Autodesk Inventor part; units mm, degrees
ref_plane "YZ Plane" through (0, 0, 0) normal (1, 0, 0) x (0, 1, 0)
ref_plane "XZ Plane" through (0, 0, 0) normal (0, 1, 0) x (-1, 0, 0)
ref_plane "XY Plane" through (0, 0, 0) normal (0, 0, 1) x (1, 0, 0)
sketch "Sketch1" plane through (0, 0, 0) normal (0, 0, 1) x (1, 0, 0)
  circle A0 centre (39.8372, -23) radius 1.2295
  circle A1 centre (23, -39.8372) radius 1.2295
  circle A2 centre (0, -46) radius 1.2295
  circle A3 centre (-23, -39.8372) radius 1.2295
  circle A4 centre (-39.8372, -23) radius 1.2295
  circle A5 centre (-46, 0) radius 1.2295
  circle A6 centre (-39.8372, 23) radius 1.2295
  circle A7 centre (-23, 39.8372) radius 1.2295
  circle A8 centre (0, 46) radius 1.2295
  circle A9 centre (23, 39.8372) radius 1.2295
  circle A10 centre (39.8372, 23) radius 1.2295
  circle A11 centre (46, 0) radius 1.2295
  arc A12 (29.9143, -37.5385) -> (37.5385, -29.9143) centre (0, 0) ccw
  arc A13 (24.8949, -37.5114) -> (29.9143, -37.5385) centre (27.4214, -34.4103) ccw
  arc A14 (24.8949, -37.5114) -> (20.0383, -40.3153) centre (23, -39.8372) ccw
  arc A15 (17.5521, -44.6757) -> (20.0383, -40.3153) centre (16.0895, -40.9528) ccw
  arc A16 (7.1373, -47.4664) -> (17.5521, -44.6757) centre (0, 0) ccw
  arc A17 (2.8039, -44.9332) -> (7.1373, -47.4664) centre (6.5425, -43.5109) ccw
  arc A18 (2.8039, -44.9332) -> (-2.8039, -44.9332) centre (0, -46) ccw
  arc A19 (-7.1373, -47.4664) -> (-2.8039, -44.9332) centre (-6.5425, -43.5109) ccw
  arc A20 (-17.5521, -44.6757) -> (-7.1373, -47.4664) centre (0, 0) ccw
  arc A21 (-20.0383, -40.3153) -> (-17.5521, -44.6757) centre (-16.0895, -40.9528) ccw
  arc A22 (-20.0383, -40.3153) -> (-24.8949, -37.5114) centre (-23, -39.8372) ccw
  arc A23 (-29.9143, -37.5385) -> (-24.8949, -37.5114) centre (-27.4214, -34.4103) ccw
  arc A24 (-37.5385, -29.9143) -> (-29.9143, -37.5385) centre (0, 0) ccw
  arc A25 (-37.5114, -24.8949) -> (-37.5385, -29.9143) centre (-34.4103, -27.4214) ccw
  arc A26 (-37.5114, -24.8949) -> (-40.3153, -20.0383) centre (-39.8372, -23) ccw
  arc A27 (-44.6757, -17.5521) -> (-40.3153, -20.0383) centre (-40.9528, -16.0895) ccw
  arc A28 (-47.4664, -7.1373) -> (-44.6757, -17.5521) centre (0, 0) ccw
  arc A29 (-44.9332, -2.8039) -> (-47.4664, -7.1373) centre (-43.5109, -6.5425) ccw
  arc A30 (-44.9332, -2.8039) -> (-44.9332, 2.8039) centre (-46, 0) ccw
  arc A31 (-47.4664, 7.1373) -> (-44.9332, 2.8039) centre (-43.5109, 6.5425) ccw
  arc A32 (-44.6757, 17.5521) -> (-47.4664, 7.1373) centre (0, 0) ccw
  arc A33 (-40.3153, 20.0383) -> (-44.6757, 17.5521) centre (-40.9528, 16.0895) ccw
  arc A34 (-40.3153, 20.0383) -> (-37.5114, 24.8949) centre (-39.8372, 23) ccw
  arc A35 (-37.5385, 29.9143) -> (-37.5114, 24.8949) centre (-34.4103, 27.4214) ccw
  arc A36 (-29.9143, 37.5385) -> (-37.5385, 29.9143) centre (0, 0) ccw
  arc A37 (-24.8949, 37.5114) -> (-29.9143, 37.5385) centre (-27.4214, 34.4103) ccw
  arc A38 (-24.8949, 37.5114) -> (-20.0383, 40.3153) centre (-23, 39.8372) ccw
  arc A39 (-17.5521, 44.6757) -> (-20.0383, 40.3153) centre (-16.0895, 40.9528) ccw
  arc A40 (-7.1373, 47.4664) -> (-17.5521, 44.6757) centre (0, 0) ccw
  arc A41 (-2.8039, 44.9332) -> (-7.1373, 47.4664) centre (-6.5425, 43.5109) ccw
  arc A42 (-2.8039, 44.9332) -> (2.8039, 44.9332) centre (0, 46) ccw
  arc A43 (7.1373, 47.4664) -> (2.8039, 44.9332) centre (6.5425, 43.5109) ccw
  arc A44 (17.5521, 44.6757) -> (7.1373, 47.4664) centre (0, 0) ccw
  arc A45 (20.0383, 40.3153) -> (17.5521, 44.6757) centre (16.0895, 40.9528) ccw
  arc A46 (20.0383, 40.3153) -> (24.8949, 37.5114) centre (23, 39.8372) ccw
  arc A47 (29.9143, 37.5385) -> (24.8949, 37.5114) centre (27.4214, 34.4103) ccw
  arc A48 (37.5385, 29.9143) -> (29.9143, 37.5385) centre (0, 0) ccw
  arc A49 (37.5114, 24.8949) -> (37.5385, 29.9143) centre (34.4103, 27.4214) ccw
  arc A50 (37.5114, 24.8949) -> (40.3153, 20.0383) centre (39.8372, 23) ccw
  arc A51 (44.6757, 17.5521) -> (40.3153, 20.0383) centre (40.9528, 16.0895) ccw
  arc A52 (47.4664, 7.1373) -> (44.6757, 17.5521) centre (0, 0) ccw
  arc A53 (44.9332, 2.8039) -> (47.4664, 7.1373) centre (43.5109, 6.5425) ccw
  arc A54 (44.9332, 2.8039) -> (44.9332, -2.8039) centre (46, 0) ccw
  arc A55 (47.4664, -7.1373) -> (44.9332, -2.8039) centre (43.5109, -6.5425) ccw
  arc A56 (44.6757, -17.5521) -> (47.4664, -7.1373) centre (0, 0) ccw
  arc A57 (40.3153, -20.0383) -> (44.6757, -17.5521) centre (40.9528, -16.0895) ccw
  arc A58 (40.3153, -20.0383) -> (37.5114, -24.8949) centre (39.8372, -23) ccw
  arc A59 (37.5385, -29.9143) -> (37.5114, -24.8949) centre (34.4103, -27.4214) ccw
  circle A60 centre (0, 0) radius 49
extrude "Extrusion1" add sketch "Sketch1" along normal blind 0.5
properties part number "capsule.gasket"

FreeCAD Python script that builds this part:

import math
import FreeCAD as App
import Part
import Sketcher
from FreeCAD import Vector
Q = App.Units.Quantity

doc = App.newDocument("Part")
body = doc.addObject("PartDesign::Body", "Body")

# Sketch on XY plane
sketch1 = body.newObject("Sketcher::SketchObject", "Sketch")
sketch1.AttachmentSupport = (doc.getObject("XY_Plane"), [""])
sketch1.MapMode = "FlatFace"
sketch1.addGeometry([
    Part.Circle(Vector(0, 0, 0), Vector(0, 0, 1), 49),  # 0
    Part.Circle(Vector(-23, -39.8372, 0), Vector(0, 0, 1), 1.2295),  # 1
    Part.Circle(Vector(0, -46, 0), Vector(0, 0, 1), 1.2295),  # 2
    Part.Circle(Vector(-39.8372, -23, 0), Vector(0, 0, 1), 1.2295),  # 3
    Part.Circle(Vector(-46, 0, 0), Vector(0, 0, 1), 1.2295),  # 4
    Part.ArcOfCircle(Part.Circle(Vector(0, 0, 0), Vector(0, 0, 1), 48.000045), math.radians(-51.448781), math.radians(-38.551219)),  # 5
    Part.ArcOfCircle(Part.Circle(Vector(27.4214, -34.4103, 0), Vector(0, 0, 1), 4.000003), math.radians(-129.17008), math.radians(-51.448239)),  # 6
    Part.ArcOfCircle(Part.Circle(Vector(23, -39.8372, 0), Vector(0, 0, 1), 2.999999), math.radians(50.829248), math.radians(189.170011)),  # 7
    Part.ArcOfCircle(Part.Circle(Vector(16.0895, -40.9528, 0), Vector(0, 0, 1), 3.999898), math.radians(-68.551835), math.radians(9.170786)),  # 8
    Part.ArcOfCircle(Part.Circle(Vector(0.000975, -0.004677, 0), Vector(0, 0, 1), 47.995232), math.radians(-81.449086), math.radians(-68.55027)),  # 9
    Part.ArcOfCircle(Part.Circle(Vector(6.5425, -43.5109, 0), Vector(0, 0, 1), 4.000008), math.radians(-159.171357), math.radians(-81.44834)),  # 10
    Part.ArcOfCircle(Part.Circle(Vector(0, -46, 0), Vector(0, 0, 1), 2.999986), math.radians(20.830321), math.radians(159.169679)),  # 11
    Part.ArcOfCircle(Part.Circle(Vector(-6.5425, -43.5109, 0), Vector(0, 0, 1), 3.999971), math.radians(-98.55166), math.radians(-20.828643)),  # 12
    Part.ArcOfCircle(Part.Circle(Vector(0.001494, 0.004539, 0), Vector(0, 0, 1), 48.004712), math.radians(-111.448451), math.radians(-98.552193)),  # 13
    Part.ArcOfCircle(Part.Circle(Vector(-16.0895, -40.9528, 0), Vector(0, 0, 1), 3.999928), math.radians(170.829214), math.radians(248.551835)),  # 14
    Part.ArcOfCircle(Part.Circle(Vector(-23, -39.8372, 0), Vector(0, 0, 1), 3.000041), math.radians(-9.170011), math.radians(129.170752)),  # 15
    Part.ArcOfCircle(Part.Circle(Vector(-27.4214, -34.4103, 0), Vector(0, 0, 1), 4.000023), math.radians(-128.551761), math.radians(-50.82992)),  # 16
    Part.ArcOfCircle(Part.Circle(Vector(0, 0, 0), Vector(0, 0, 1), 48.000045), math.radians(-141.448781), math.radians(-128.551219)),  # 17
    Part.ArcOfCircle(Part.Circle(Vector(-34.4103, -27.4214, 0), Vector(0, 0, 1), 4.000003), math.radians(140.82992), math.radians(218.551761)),  # 18
    Part.ArcOfCircle(Part.Circle(Vector(-39.8372, -23, 0), Vector(0, 0, 1), 2.999999), math.radians(-39.170752), math.radians(99.170011)),  # 19
    Part.ArcOfCircle(Part.Circle(Vector(-40.9528, -16.0895, 0), Vector(0, 0, 1), 3.999898), math.radians(-158.551835), math.radians(-80.829214)),  # 20
    Part.ArcOfCircle(Part.Circle(Vector(-0.004677, -0.000975, 0), Vector(0, 0, 1), 47.995232), math.radians(-171.449086), math.radians(-158.55027)),  # 21
    Part.ArcOfCircle(Part.Circle(Vector(-43.5109, -6.5425, 0), Vector(0, 0, 1), 4.000008), math.radians(110.828643), math.radians(188.55166)),  # 22
    Part.ArcOfCircle(Part.Circle(Vector(-46, 0, 0), Vector(0, 0, 1), 2.999986), math.radians(-69.169679), math.radians(69.169679)),  # 23
    Part.ArcOfCircle(Part.Circle(Vector(-43.5109, 6.5425, 0), Vector(0, 0, 1), 3.999971), math.radians(171.44834), math.radians(249.171357)),  # 24
    Part.ArcOfCircle(Part.Circle(Vector(0.004539, -0.001494, 0), Vector(0, 0, 1), 48.004712), math.radians(158.551549), math.radians(171.447807)),  # 25
    Part.ArcOfCircle(Part.Circle(Vector(-40.9528, 16.0895, 0), Vector(0, 0, 1), 3.999928), math.radians(80.829214), math.radians(158.551835)),  # 26
    Part.ArcOfCircle(Part.Circle(Vector(-39.8372, 23, 0), Vector(0, 0, 1), 3.000041), math.radians(-99.170011), math.radians(39.170752)),  # 27
    Part.ArcOfCircle(Part.Circle(Vector(-34.4103, 27.4214, 0), Vector(0, 0, 1), 4.000023), math.radians(141.448239), math.radians(219.17008)),  # 28
    Part.ArcOfCircle(Part.Circle(Vector(0, 0, 0), Vector(0, 0, 1), 48.000045), math.radians(128.551219), math.radians(141.448781)),  # 29
    Part.ArcOfCircle(Part.Circle(Vector(-27.4214, 34.4103, 0), Vector(0, 0, 1), 4.000003), math.radians(50.82992), math.radians(128.551761)),  # 30
    Part.ArcOfCircle(Part.Circle(Vector(-23, 39.8372, 0), Vector(0, 0, 1), 2.999999), math.radians(-129.170752), math.radians(9.170011)),  # 31
    Part.ArcOfCircle(Part.Circle(Vector(-16.0895, 40.9528, 0), Vector(0, 0, 1), 3.999898), math.radians(111.448165), math.radians(189.170786)),  # 32
    Part.ArcOfCircle(Part.Circle(Vector(-0.000975, 0.004677, 0), Vector(0, 0, 1), 47.995232), math.radians(98.550914), math.radians(111.44973)),  # 33
    Part.ArcOfCircle(Part.Circle(Vector(-6.5425, 43.5109, 0), Vector(0, 0, 1), 4.000008), math.radians(20.828643), math.radians(98.55166)),  # 34
    Part.ArcOfCircle(Part.Circle(Vector(0, 46, 0), Vector(0, 0, 1), 2.999986), math.radians(-159.169679), math.radians(-20.830321)),  # 35
    Part.ArcOfCircle(Part.Circle(Vector(6.5425, 43.5109, 0), Vector(0, 0, 1), 3.999971), math.radians(81.44834), math.radians(159.171357)),  # 36
    Part.ArcOfCircle(Part.Circle(Vector(-0.001494, -0.004539, 0), Vector(0, 0, 1), 48.004712), math.radians(68.551549), math.radians(81.447807)),  # 37
    Part.ArcOfCircle(Part.Circle(Vector(16.0895, 40.9528, 0), Vector(0, 0, 1), 3.999928), math.radians(-9.170786), math.radians(68.551835)),  # 38
    Part.ArcOfCircle(Part.Circle(Vector(23, 39.8372, 0), Vector(0, 0, 1), 3.000041), math.radians(170.829989), math.radians(309.170752)),  # 39
    Part.ArcOfCircle(Part.Circle(Vector(27.4214, 34.4103, 0), Vector(0, 0, 1), 4.000023), math.radians(51.448239), math.radians(129.17008)),  # 40
    Part.ArcOfCircle(Part.Circle(Vector(0, 0, 0), Vector(0, 0, 1), 48.000045), math.radians(38.551219), math.radians(51.448781)),  # 41
    Part.ArcOfCircle(Part.Circle(Vector(34.4103, 27.4214, 0), Vector(0, 0, 1), 4.000003), math.radians(-39.17008), math.radians(38.551761)),  # 42
    Part.ArcOfCircle(Part.Circle(Vector(39.8372, 23, 0), Vector(0, 0, 1), 2.999999), math.radians(140.829248), math.radians(279.170011)),  # 43
    Part.ArcOfCircle(Part.Circle(Vector(40.9528, 16.0895, 0), Vector(0, 0, 1), 3.999898), math.radians(21.448165), math.radians(99.170786)),  # 44
    Part.ArcOfCircle(Part.Circle(Vector(0.004677, 0.000975, 0), Vector(0, 0, 1), 47.995232), math.radians(8.550914), math.radians(21.44973)),  # 45
    Part.ArcOfCircle(Part.Circle(Vector(43.5109, 6.5425, 0), Vector(0, 0, 1), 4.000008), math.radians(-69.171357), math.radians(8.55166)),  # 46
    Part.ArcOfCircle(Part.Circle(Vector(46, 0, 0), Vector(0, 0, 1), 2.999986), math.radians(110.830321), math.radians(249.169679)),  # 47
    Part.ArcOfCircle(Part.Circle(Vector(43.5109, -6.5425, 0), Vector(0, 0, 1), 3.999971), math.radians(-8.55166), math.radians(69.171357)),  # 48
    Part.ArcOfCircle(Part.Circle(Vector(-0.004539, 0.001494, 0), Vector(0, 0, 1), 48.004712), math.radians(-21.448451), math.radians(-8.552193)),  # 49
    Part.ArcOfCircle(Part.Circle(Vector(40.9528, -16.0895, 0), Vector(0, 0, 1), 3.999928), math.radians(-99.170786), math.radians(-21.448165)),  # 50
    Part.ArcOfCircle(Part.Circle(Vector(39.8372, -23, 0), Vector(0, 0, 1), 3.000041), math.radians(80.829989), math.radians(219.170752)),  # 51
    Part.ArcOfCircle(Part.Circle(Vector(34.4103, -27.4214, 0), Vector(0, 0, 1), 4.000023), math.radians(-38.551761), math.radians(39.17008)),  # 52
    Part.Circle(Vector(23, -39.8372, 0), Vector(0, 0, 1), 1.2295),  # 53
    Part.Circle(Vector(39.8372, -23, 0), Vector(0, 0, 1), 1.2295),  # 54
    Part.Circle(Vector(46, 0, 0), Vector(0, 0, 1), 1.2295),  # 55
    Part.Circle(Vector(-39.8372, 23, 0), Vector(0, 0, 1), 1.2295),  # 56
    Part.Circle(Vector(-23, 39.8372, 0), Vector(0, 0, 1), 1.2295),  # 57
    Part.Circle(Vector(0, 46, 0), Vector(0, 0, 1), 1.2295),  # 58
    Part.Circle(Vector(39.8372, 23, 0), Vector(0, 0, 1), 1.2295),  # 59
    Part.Circle(Vector(23, 39.8372, 0), Vector(0, 0, 1), 1.2295),  # 60
], False)
sketch1.addConstraint([
    Sketcher.Constraint("Tangent", 5, 1, 6, 2),
    Sketcher.Constraint("Tangent", 6, 1, 7, 1),
    Sketcher.Constraint("Tangent", 7, 2, 8, 2),
    Sketcher.Constraint("Tangent", 8, 1, 9, 2),
    Sketcher.Constraint("Tangent", 9, 1, 10, 2),
    Sketcher.Constraint("Tangent", 10, 1, 11, 1),
    Sketcher.Constraint("Tangent", 11, 2, 12, 2),
    Sketcher.Constraint("Tangent", 12, 1, 13, 2),
    Sketcher.Constraint("Tangent", 13, 1, 14, 2),
    Sketcher.Constraint("Tangent", 14, 1, 15, 1),
    Sketcher.Constraint("Tangent", 15, 2, 16, 2),
    Sketcher.Constraint("Tangent", 16, 1, 17, 2),
    Sketcher.Constraint("Tangent", 17, 1, 18, 2),
    Sketcher.Constraint("Tangent", 18, 1, 19, 1),
    Sketcher.Constraint("Tangent", 19, 2, 20, 2),
    Sketcher.Constraint("Tangent", 20, 1, 21, 2),
    Sketcher.Constraint("Tangent", 21, 1, 22, 2),
    Sketcher.Constraint("Tangent", 22, 1, 23, 1),
    Sketcher.Constraint("Tangent", 23, 2, 24, 2),
    Sketcher.Constraint("Tangent", 24, 1, 25, 2),
    Sketcher.Constraint("Tangent", 25, 1, 26, 2),
    Sketcher.Constraint("Tangent", 26, 1, 27, 1),
    Sketcher.Constraint("Tangent", 27, 2, 28, 2),
    Sketcher.Constraint("Tangent", 28, 1, 29, 2),
    Sketcher.Constraint("Tangent", 29, 1, 30, 2),
    Sketcher.Constraint("Tangent", 30, 1, 31, 1),
    Sketcher.Constraint("Tangent", 31, 2, 32, 2),
    Sketcher.Constraint("Tangent", 32, 1, 33, 2),
    Sketcher.Constraint("Tangent", 33, 1, 34, 2),
    Sketcher.Constraint("Tangent", 34, 1, 35, 1),
    Sketcher.Constraint("Tangent", 35, 2, 36, 2),
    Sketcher.Constraint("Tangent", 36, 1, 37, 2),
    Sketcher.Constraint("Tangent", 37, 1, 38, 2),
    Sketcher.Constraint("Tangent", 38, 1, 39, 1),
    Sketcher.Constraint("Tangent", 39, 2, 40, 2),
    Sketcher.Constraint("Tangent", 40, 1, 41, 2),
    Sketcher.Constraint("Tangent", 41, 1, 42, 2),
    Sketcher.Constraint("Tangent", 42, 1, 43, 1),
    Sketcher.Constraint("Tangent", 43, 2, 44, 2),
    Sketcher.Constraint("Tangent", 44, 1, 45, 2),
    Sketcher.Constraint("Tangent", 45, 1, 46, 2),
    Sketcher.Constraint("Tangent", 46, 1, 47, 1),
    Sketcher.Constraint("Tangent", 47, 2, 48, 2),
    Sketcher.Constraint("Tangent", 48, 1, 49, 2),
    Sketcher.Constraint("Tangent", 49, 1, 50, 2),
    Sketcher.Constraint("Tangent", 50, 1, 51, 1),
    Sketcher.Constraint("Tangent", 51, 2, 52, 2),
    Sketcher.Constraint("Tangent", 52, 1, 5, 2),
    Sketcher.Constraint("Coincident", 0, 3, -1, 1),
    Sketcher.Constraint("Coincident", 5, 3, -1, 1),
    Sketcher.Constraint("Coincident", 17, 3, -1, 1),
    Sketcher.Constraint("Coincident", 29, 3, -1, 1),
    Sketcher.Constraint("Coincident", 41, 3, -1, 1),
    Sketcher.Constraint("Coincident", 11, 3, 2, 3),
    Sketcher.Constraint("Coincident", 15, 3, 1, 3),
    Sketcher.Constraint("Coincident", 19, 3, 3, 3),
    Sketcher.Constraint("Coincident", 23, 3, 4, 3),
    Sketcher.Constraint("Coincident", 53, 3, 7, 3),
    Sketcher.Constraint("Coincident", 54, 3, 51, 3),
    Sketcher.Constraint("Coincident", 55, 3, 47, 3),
    Sketcher.Constraint("Coincident", 56, 3, 27, 3),
    Sketcher.Constraint("Coincident", 57, 3, 31, 3),
    Sketcher.Constraint("Coincident", 58, 3, 35, 3),
    Sketcher.Constraint("Coincident", 59, 3, 43, 3),
    Sketcher.Constraint("Coincident", 60, 3, 39, 3),
    Sketcher.Constraint("Equal", 1, 2),
    Sketcher.Constraint("Equal", 2, 3),
    Sketcher.Constraint("Equal", 3, 4),
    Sketcher.Constraint("Equal", 6, 8),
    Sketcher.Constraint("Equal", 8, 10),
    Sketcher.Constraint("Equal", 7, 11),
    Sketcher.Constraint("Equal", 10, 12),
    Sketcher.Constraint("Equal", 12, 14),
    Sketcher.Constraint("Equal", 11, 15),
    Sketcher.Constraint("Equal", 14, 16),
    Sketcher.Constraint("Equal", 5, 17),
    Sketcher.Constraint("Equal", 16, 18),
    Sketcher.Constraint("Equal", 15, 19),
    Sketcher.Constraint("Equal", 18, 20),
    Sketcher.Constraint("Equal", 9, 21),
    Sketcher.Constraint("Equal", 20, 22),
    Sketcher.Constraint("Equal", 19, 23),
    Sketcher.Constraint("Equal", 22, 24),
    Sketcher.Constraint("Equal", 13, 25),
    Sketcher.Constraint("Equal", 24, 26),
    Sketcher.Constraint("Equal", 23, 27),
    Sketcher.Constraint("Equal", 26, 28),
    Sketcher.Constraint("Equal", 17, 29),
    Sketcher.Constraint("Equal", 28, 30),
    Sketcher.Constraint("Equal", 27, 31),
    Sketcher.Constraint("Equal", 30, 32),
    Sketcher.Constraint("Equal", 21, 33),
    Sketcher.Constraint("Equal", 32, 34),
    Sketcher.Constraint("Equal", 31, 35),
    Sketcher.Constraint("Equal", 34, 36),
    Sketcher.Constraint("Equal", 25, 37),
    Sketcher.Constraint("Equal", 36, 38),
    Sketcher.Constraint("Equal", 35, 39),
    Sketcher.Constraint("Equal", 38, 40),
    Sketcher.Constraint("Equal", 29, 41),
    Sketcher.Constraint("Equal", 40, 42),
    Sketcher.Constraint("Equal", 39, 43),
    Sketcher.Constraint("Equal", 42, 44),
    Sketcher.Constraint("Equal", 33, 45),
    Sketcher.Constraint("Equal", 44, 46),
    Sketcher.Constraint("Equal", 43, 47),
    Sketcher.Constraint("Equal", 46, 48),
    Sketcher.Constraint("Equal", 37, 49),
    Sketcher.Constraint("Equal", 48, 50),
    Sketcher.Constraint("Equal", 47, 51),
    Sketcher.Constraint("Equal", 50, 52),
    Sketcher.Constraint("Equal", 4, 53),
    Sketcher.Constraint("Equal", 53, 54),
    Sketcher.Constraint("Equal", 54, 55),
    Sketcher.Constraint("Equal", 55, 56),
    Sketcher.Constraint("Equal", 56, 57),
    Sketcher.Constraint("Equal", 57, 58),
    Sketcher.Constraint("Equal", 58, 59),
    Sketcher.Constraint("Equal", 59, 60),
    Sketcher.Constraint("Symmetric", 7, 3, 31, 3, -1, 1),
    Sketcher.Constraint("Symmetric", 9, 3, 33, 3, -1, 1),
    Sketcher.Constraint("Symmetric", 2, 3, 35, 3, -1, 1),
    Sketcher.Constraint("Symmetric", 13, 3, 37, 3, -1, 1),
    Sketcher.Constraint("Symmetric", 1, 3, 39, 3, -1, 1),
    Sketcher.Constraint("Symmetric", 3, 3, 43, 3, -1, 1),
    Sketcher.Constraint("Symmetric", 21, 3, 45, 3, -1, 1),
    Sketcher.Constraint("Symmetric", 4, 3, 47, 3, -1, 1),
    Sketcher.Constraint("Symmetric", 25, 3, 49, 3, -1, 1),
    Sketcher.Constraint("Symmetric", 27, 3, 51, 3, -1, 1),
    Sketcher.Constraint("Symmetric", 1, 3, 7, 3, -2),
    Sketcher.Constraint("Symmetric", 10, 3, 12, 3, -2),
    Sketcher.Constraint("Symmetric", 27, 3, 43, 3, -2),
    Sketcher.Constraint("Symmetric", 24, 3, 46, 3, -2),
    Sketcher.Constraint("Horizontal", 8, 3, 14, 3),
    Sketcher.Constraint("Horizontal", 13, 3, 33, 3),
    Sketcher.Constraint("Horizontal", 26, 3, 44, 3),
    Sketcher.Constraint("Vertical", 25, 3, 45, 3),
    Sketcher.Constraint("Diameter", 0, Q("98 mm")),
    Sketcher.Constraint("Radius", 5, Q("48 mm")),
    Sketcher.Constraint("Radius", 6, Q("4 mm")),
    Sketcher.Constraint("Radius", 7, Q("3 mm")),
    Sketcher.Constraint("Diameter", 1, Q("2.459 mm")),
    Sketcher.Constraint("DistanceX", 1, 3, -1, 1, Q("23 mm")),
    Sketcher.Constraint("DistanceY", 2, 3, -1, 1, Q("46 mm")),
    Sketcher.Constraint("DistanceY", 3, 3, -1, 1, Q("23 mm")),
    Sketcher.Constraint("DistanceX", 4, 3, -1, 1, Q("46 mm")),
    Sketcher.Constraint("Radius", 9, Q("47.9952 mm")),
    Sketcher.Constraint("Radius", 13, Q("48.0047 mm")),
    Sketcher.Constraint("DistanceX", -1, 1, 9, 3, Q("0.001 mm")),
    Sketcher.Constraint("DistanceY", 21, 3, -1, 1, Q("0.001 mm")),
    Sketcher.Constraint("DistanceX", -1, 1, 6, 1, Q("24.895 mm")),
    Sketcher.Constraint("DistanceY", 18, 1, -1, 1, Q("24.895 mm")),
])
pad1 = body.newObject("PartDesign::Pad", "Pad")
pad1.Profile = sketch1
pad1.Length = 0.5

doc.recompute()
